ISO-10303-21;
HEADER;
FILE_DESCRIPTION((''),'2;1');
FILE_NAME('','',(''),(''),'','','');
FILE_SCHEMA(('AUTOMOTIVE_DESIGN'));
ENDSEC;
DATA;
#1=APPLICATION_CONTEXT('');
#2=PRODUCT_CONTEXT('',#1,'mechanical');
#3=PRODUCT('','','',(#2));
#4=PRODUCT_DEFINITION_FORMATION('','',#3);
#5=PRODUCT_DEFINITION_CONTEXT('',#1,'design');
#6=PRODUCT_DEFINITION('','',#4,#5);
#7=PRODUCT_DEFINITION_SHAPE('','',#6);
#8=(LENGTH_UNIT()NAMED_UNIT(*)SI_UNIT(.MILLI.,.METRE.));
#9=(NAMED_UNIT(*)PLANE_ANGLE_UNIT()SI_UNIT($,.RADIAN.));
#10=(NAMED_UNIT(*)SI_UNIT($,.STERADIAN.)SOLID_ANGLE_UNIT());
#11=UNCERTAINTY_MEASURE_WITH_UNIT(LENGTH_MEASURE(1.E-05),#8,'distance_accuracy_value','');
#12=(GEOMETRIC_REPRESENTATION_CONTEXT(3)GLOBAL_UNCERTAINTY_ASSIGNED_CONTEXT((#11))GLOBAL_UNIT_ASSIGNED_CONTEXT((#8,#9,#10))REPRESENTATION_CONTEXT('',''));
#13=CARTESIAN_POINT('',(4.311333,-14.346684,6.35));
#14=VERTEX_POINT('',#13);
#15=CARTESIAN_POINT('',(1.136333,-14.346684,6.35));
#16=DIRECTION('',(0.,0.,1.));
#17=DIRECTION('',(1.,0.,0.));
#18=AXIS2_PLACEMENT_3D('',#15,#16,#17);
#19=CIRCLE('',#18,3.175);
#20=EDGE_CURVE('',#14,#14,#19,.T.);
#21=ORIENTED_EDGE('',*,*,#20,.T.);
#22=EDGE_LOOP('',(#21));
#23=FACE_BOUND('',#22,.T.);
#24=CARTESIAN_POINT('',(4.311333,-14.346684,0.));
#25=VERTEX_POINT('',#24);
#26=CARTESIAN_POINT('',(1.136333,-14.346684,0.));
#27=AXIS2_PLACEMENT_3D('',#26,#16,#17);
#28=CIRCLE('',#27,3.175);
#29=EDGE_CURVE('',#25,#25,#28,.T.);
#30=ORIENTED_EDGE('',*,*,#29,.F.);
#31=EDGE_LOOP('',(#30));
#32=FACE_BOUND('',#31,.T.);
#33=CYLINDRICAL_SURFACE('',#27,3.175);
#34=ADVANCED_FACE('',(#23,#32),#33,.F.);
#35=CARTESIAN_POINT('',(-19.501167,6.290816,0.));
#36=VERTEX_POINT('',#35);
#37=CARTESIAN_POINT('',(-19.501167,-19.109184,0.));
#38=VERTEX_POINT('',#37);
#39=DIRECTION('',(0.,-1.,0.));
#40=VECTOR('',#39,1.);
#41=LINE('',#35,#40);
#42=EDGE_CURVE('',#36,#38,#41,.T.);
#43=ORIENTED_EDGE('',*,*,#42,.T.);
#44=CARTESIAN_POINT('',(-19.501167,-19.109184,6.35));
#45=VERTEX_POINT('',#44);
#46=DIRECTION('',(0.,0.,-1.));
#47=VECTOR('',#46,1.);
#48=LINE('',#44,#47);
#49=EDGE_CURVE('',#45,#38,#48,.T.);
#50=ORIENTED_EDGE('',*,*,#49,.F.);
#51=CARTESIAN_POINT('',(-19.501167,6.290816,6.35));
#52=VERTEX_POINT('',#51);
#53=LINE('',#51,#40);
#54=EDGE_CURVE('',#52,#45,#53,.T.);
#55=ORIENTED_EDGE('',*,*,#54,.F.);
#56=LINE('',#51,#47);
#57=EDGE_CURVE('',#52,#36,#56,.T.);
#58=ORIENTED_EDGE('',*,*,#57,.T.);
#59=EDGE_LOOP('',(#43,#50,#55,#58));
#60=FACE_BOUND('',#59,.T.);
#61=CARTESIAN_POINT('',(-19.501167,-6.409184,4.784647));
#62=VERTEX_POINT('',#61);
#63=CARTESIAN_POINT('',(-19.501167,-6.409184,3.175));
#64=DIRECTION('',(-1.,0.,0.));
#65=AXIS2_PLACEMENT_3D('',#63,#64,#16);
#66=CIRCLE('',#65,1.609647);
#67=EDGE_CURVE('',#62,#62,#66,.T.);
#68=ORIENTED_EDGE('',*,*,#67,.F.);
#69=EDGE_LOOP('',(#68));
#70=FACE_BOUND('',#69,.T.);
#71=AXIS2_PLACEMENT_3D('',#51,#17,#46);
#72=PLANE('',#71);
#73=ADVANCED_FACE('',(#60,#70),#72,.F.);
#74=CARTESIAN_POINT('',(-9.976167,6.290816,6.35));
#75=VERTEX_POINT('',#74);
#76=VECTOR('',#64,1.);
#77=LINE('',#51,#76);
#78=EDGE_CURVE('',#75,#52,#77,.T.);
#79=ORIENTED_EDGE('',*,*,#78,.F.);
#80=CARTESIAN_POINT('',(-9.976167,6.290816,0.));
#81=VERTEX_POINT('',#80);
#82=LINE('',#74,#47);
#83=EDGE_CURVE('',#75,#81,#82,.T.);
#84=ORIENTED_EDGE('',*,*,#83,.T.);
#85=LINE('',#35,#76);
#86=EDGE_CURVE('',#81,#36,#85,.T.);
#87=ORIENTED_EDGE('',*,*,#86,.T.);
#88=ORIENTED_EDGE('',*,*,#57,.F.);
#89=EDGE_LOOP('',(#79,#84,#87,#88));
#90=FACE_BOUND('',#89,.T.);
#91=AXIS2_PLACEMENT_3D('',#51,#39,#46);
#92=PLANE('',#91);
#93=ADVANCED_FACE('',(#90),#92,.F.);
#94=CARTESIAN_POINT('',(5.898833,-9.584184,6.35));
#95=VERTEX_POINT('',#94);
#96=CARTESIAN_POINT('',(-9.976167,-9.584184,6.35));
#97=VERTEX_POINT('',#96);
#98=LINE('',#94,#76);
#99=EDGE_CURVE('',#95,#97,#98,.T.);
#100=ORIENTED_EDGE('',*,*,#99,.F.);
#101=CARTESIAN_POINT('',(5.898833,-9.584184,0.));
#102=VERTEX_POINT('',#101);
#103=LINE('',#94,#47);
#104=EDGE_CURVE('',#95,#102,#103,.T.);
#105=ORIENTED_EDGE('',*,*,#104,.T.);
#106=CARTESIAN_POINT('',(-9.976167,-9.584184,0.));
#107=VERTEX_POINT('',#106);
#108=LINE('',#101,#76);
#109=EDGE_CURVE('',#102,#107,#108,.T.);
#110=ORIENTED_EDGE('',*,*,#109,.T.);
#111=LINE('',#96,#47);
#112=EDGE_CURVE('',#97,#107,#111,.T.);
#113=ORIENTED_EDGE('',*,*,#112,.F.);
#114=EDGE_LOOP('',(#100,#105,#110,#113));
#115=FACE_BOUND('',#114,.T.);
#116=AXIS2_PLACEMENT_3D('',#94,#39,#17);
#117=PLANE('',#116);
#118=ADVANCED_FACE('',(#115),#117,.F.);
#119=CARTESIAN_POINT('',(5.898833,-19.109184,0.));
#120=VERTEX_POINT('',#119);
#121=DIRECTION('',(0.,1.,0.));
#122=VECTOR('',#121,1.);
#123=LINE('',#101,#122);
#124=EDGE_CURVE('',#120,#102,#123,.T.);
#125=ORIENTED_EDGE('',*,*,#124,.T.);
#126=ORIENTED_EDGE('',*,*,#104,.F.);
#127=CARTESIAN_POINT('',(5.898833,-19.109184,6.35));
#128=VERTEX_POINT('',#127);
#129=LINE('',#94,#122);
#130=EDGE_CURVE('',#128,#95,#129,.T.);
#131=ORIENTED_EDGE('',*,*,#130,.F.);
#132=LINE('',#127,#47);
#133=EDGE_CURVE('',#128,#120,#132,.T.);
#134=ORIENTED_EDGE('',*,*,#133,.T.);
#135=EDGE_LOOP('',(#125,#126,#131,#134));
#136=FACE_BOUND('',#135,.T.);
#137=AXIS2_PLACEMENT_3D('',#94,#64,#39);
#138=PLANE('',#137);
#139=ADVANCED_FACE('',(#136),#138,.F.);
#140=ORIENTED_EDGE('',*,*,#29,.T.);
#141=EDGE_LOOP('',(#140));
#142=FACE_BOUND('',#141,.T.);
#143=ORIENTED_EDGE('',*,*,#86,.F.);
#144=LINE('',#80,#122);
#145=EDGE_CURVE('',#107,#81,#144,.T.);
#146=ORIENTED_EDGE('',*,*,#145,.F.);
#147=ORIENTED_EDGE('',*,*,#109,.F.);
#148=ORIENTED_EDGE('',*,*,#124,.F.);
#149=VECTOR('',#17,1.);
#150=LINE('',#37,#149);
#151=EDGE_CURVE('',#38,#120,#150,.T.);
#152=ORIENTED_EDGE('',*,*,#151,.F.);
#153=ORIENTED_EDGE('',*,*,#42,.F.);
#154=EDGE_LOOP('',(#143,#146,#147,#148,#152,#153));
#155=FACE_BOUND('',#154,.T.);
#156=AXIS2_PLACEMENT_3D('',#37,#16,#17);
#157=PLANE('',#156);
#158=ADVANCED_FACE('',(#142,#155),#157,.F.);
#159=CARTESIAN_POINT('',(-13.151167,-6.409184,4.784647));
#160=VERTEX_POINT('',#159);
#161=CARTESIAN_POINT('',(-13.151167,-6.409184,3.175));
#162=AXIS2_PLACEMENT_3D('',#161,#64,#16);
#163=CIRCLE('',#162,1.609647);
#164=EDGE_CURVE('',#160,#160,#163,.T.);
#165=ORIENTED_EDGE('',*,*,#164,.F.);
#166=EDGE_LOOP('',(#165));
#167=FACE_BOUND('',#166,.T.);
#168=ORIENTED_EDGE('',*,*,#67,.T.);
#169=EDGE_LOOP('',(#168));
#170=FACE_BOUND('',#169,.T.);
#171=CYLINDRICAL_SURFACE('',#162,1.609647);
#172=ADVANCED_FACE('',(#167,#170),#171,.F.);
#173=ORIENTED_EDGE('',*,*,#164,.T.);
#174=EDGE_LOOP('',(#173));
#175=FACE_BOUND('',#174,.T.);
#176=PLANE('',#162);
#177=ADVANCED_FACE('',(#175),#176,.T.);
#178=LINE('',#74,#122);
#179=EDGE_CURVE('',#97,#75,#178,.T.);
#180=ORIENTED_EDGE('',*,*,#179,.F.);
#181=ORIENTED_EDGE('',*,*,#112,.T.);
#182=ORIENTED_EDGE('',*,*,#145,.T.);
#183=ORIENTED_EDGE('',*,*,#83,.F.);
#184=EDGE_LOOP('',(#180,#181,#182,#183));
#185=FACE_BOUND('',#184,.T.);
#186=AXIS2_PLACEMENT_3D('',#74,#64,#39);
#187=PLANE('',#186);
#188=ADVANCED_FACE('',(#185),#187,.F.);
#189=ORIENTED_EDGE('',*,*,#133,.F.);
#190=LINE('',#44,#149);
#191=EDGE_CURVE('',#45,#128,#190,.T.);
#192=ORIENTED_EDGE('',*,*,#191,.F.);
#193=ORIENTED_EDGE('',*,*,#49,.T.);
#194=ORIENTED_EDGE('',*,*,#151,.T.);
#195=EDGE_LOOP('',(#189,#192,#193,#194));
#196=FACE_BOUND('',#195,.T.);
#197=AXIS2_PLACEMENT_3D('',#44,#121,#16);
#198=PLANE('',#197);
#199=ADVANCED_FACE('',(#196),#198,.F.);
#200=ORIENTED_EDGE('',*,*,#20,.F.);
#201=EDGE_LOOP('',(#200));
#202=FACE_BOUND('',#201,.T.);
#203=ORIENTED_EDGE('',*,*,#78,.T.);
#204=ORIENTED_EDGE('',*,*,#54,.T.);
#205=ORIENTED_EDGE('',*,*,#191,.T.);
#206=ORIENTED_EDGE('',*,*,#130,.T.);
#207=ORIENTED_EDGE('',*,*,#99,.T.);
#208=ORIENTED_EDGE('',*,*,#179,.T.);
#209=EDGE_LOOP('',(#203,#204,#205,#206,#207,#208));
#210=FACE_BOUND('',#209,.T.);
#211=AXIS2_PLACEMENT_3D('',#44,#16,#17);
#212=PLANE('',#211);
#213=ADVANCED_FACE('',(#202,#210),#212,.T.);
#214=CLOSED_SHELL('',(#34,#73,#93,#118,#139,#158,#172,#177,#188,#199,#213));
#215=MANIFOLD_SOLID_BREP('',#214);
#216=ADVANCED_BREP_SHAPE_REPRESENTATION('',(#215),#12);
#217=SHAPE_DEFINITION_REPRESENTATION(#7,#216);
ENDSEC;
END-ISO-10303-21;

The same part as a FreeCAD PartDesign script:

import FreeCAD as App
import Part
import Sketcher
Q = App.Units.Quantity


def add_polygon(sketch, points):
    """Adds a closed chain of lines whose ends are joined by coincident constraints."""
    first, n = sketch.GeometryCount, len(points)
    for a, b in zip(points, points[1:] + points[:1]):
        sketch.addGeometry(Part.LineSegment(App.Vector(*a, 0), App.Vector(*b, 0)), False)
    for i in range(n):
        sketch.addConstraint(Sketcher.Constraint("Coincident", first + i, 2, first + (i + 1) % n, 1))

doc = App.newDocument("Part")
body = doc.addObject("PartDesign::Body", "Body")

# Sketch on XY plane
sketch1 = doc.addObject("Sketcher::SketchObject", "Sketch")
body.addObject(sketch1)
sketch1.AttachmentSupport = (doc.XY_Plane, [""])
sketch1.MapMode = "FlatFace"
add_polygon(sketch1, [(-10, 6), (-20, 6), (-20, -19), (6, -19), (6, -10), (-10, -10)])  # lines 0-5
sketch1.addConstraint([
    Sketcher.Constraint("Horizontal", 0),
    Sketcher.Constraint("Vertical", 1),
    Sketcher.Constraint("Horizontal", 2),
    Sketcher.Constraint("Vertical", 3),
    Sketcher.Constraint("Horizontal", 4),
    Sketcher.Constraint("Vertical", 5),
    Sketcher.Constraint("Equal", 2, 1),
    Sketcher.Constraint("Equal", 0, 3),
    Sketcher.Constraint("DistanceX", 2, 1, 2, 2, Q("1 in")),
    Sketcher.Constraint("DistanceX", 0, 2, 0, 1, Q("0.375 in")),
    Sketcher.Constraint("DistanceX", 0, 2, -1, 1, 19.501167),
    Sketcher.Constraint("DistanceY", -1, 1, 0, 2, 6.290816),
])
pad1 = doc.addObject("PartDesign::Pad", "Pad")
body.addObject(pad1)
pad1.Profile = sketch1
pad1.Length = Q("0.25 in")

# Sketch on XY plane
sketch2 = doc.addObject("Sketcher::SketchObject", "Sketch001")
body.addObject(sketch2)
sketch2.AttachmentSupport = (doc.XY_Plane, [""])
sketch2.MapMode = "FlatFace"
sketch2.AttachmentOffset = App.Placement(App.Vector(0, 0, 0.25 * 25.4), App.Rotation())
sketch2.addGeometry(Part.Circle(App.Vector(1.1, -14.3, 0), App.Vector(0, 0, 1), 3.2), False)
sketch2.addConstraint([
    Sketcher.Constraint("Diameter", 0, Q("0.25 in")),
    Sketcher.Constraint("DistanceX", -1, 1, 0, 3, 1.136333),
    Sketcher.Constraint("DistanceY", 0, 3, -1, 1, 14.346684),
])
pocket1 = doc.addObject("PartDesign::Pocket", "Pocket")
body.addObject(pocket1)
pocket1.Profile = sketch2
pocket1.Type = "ThroughAll"

# Sketch on YZ plane
sketch3 = doc.addObject("Sketcher::SketchObject", "Sketch002")
body.addObject(sketch3)
sketch3.AttachmentSupport = (doc.YZ_Plane, [""])
sketch3.MapMode = "FlatFace"
sketch3.AttachmentOffset = App.Placement(App.Vector(0, 0, -19.501167), App.Rotation())
sketch3.addGeometry(Part.Circle(App.Vector(-6.4, 3.2, 0), App.Vector(0, 0, 1), 1.6), False)
sketch3.addConstraint([
    Sketcher.Constraint("DistanceY", -1, 1, 0, 3, Q("0.125 in")),
    Sketcher.Constraint("Diameter", 0, 3.219294),
    Sketcher.Constraint("DistanceX", 0, 3, -1, 1, 6.409184),
])
pocket2 = doc.addObject("PartDesign::Pocket", "Pocket001")
body.addObject(pocket2)
pocket2.Profile = sketch3
pocket2.Length = Q("0.25 in")
pocket2.Reversed = True

doc.recompute()
